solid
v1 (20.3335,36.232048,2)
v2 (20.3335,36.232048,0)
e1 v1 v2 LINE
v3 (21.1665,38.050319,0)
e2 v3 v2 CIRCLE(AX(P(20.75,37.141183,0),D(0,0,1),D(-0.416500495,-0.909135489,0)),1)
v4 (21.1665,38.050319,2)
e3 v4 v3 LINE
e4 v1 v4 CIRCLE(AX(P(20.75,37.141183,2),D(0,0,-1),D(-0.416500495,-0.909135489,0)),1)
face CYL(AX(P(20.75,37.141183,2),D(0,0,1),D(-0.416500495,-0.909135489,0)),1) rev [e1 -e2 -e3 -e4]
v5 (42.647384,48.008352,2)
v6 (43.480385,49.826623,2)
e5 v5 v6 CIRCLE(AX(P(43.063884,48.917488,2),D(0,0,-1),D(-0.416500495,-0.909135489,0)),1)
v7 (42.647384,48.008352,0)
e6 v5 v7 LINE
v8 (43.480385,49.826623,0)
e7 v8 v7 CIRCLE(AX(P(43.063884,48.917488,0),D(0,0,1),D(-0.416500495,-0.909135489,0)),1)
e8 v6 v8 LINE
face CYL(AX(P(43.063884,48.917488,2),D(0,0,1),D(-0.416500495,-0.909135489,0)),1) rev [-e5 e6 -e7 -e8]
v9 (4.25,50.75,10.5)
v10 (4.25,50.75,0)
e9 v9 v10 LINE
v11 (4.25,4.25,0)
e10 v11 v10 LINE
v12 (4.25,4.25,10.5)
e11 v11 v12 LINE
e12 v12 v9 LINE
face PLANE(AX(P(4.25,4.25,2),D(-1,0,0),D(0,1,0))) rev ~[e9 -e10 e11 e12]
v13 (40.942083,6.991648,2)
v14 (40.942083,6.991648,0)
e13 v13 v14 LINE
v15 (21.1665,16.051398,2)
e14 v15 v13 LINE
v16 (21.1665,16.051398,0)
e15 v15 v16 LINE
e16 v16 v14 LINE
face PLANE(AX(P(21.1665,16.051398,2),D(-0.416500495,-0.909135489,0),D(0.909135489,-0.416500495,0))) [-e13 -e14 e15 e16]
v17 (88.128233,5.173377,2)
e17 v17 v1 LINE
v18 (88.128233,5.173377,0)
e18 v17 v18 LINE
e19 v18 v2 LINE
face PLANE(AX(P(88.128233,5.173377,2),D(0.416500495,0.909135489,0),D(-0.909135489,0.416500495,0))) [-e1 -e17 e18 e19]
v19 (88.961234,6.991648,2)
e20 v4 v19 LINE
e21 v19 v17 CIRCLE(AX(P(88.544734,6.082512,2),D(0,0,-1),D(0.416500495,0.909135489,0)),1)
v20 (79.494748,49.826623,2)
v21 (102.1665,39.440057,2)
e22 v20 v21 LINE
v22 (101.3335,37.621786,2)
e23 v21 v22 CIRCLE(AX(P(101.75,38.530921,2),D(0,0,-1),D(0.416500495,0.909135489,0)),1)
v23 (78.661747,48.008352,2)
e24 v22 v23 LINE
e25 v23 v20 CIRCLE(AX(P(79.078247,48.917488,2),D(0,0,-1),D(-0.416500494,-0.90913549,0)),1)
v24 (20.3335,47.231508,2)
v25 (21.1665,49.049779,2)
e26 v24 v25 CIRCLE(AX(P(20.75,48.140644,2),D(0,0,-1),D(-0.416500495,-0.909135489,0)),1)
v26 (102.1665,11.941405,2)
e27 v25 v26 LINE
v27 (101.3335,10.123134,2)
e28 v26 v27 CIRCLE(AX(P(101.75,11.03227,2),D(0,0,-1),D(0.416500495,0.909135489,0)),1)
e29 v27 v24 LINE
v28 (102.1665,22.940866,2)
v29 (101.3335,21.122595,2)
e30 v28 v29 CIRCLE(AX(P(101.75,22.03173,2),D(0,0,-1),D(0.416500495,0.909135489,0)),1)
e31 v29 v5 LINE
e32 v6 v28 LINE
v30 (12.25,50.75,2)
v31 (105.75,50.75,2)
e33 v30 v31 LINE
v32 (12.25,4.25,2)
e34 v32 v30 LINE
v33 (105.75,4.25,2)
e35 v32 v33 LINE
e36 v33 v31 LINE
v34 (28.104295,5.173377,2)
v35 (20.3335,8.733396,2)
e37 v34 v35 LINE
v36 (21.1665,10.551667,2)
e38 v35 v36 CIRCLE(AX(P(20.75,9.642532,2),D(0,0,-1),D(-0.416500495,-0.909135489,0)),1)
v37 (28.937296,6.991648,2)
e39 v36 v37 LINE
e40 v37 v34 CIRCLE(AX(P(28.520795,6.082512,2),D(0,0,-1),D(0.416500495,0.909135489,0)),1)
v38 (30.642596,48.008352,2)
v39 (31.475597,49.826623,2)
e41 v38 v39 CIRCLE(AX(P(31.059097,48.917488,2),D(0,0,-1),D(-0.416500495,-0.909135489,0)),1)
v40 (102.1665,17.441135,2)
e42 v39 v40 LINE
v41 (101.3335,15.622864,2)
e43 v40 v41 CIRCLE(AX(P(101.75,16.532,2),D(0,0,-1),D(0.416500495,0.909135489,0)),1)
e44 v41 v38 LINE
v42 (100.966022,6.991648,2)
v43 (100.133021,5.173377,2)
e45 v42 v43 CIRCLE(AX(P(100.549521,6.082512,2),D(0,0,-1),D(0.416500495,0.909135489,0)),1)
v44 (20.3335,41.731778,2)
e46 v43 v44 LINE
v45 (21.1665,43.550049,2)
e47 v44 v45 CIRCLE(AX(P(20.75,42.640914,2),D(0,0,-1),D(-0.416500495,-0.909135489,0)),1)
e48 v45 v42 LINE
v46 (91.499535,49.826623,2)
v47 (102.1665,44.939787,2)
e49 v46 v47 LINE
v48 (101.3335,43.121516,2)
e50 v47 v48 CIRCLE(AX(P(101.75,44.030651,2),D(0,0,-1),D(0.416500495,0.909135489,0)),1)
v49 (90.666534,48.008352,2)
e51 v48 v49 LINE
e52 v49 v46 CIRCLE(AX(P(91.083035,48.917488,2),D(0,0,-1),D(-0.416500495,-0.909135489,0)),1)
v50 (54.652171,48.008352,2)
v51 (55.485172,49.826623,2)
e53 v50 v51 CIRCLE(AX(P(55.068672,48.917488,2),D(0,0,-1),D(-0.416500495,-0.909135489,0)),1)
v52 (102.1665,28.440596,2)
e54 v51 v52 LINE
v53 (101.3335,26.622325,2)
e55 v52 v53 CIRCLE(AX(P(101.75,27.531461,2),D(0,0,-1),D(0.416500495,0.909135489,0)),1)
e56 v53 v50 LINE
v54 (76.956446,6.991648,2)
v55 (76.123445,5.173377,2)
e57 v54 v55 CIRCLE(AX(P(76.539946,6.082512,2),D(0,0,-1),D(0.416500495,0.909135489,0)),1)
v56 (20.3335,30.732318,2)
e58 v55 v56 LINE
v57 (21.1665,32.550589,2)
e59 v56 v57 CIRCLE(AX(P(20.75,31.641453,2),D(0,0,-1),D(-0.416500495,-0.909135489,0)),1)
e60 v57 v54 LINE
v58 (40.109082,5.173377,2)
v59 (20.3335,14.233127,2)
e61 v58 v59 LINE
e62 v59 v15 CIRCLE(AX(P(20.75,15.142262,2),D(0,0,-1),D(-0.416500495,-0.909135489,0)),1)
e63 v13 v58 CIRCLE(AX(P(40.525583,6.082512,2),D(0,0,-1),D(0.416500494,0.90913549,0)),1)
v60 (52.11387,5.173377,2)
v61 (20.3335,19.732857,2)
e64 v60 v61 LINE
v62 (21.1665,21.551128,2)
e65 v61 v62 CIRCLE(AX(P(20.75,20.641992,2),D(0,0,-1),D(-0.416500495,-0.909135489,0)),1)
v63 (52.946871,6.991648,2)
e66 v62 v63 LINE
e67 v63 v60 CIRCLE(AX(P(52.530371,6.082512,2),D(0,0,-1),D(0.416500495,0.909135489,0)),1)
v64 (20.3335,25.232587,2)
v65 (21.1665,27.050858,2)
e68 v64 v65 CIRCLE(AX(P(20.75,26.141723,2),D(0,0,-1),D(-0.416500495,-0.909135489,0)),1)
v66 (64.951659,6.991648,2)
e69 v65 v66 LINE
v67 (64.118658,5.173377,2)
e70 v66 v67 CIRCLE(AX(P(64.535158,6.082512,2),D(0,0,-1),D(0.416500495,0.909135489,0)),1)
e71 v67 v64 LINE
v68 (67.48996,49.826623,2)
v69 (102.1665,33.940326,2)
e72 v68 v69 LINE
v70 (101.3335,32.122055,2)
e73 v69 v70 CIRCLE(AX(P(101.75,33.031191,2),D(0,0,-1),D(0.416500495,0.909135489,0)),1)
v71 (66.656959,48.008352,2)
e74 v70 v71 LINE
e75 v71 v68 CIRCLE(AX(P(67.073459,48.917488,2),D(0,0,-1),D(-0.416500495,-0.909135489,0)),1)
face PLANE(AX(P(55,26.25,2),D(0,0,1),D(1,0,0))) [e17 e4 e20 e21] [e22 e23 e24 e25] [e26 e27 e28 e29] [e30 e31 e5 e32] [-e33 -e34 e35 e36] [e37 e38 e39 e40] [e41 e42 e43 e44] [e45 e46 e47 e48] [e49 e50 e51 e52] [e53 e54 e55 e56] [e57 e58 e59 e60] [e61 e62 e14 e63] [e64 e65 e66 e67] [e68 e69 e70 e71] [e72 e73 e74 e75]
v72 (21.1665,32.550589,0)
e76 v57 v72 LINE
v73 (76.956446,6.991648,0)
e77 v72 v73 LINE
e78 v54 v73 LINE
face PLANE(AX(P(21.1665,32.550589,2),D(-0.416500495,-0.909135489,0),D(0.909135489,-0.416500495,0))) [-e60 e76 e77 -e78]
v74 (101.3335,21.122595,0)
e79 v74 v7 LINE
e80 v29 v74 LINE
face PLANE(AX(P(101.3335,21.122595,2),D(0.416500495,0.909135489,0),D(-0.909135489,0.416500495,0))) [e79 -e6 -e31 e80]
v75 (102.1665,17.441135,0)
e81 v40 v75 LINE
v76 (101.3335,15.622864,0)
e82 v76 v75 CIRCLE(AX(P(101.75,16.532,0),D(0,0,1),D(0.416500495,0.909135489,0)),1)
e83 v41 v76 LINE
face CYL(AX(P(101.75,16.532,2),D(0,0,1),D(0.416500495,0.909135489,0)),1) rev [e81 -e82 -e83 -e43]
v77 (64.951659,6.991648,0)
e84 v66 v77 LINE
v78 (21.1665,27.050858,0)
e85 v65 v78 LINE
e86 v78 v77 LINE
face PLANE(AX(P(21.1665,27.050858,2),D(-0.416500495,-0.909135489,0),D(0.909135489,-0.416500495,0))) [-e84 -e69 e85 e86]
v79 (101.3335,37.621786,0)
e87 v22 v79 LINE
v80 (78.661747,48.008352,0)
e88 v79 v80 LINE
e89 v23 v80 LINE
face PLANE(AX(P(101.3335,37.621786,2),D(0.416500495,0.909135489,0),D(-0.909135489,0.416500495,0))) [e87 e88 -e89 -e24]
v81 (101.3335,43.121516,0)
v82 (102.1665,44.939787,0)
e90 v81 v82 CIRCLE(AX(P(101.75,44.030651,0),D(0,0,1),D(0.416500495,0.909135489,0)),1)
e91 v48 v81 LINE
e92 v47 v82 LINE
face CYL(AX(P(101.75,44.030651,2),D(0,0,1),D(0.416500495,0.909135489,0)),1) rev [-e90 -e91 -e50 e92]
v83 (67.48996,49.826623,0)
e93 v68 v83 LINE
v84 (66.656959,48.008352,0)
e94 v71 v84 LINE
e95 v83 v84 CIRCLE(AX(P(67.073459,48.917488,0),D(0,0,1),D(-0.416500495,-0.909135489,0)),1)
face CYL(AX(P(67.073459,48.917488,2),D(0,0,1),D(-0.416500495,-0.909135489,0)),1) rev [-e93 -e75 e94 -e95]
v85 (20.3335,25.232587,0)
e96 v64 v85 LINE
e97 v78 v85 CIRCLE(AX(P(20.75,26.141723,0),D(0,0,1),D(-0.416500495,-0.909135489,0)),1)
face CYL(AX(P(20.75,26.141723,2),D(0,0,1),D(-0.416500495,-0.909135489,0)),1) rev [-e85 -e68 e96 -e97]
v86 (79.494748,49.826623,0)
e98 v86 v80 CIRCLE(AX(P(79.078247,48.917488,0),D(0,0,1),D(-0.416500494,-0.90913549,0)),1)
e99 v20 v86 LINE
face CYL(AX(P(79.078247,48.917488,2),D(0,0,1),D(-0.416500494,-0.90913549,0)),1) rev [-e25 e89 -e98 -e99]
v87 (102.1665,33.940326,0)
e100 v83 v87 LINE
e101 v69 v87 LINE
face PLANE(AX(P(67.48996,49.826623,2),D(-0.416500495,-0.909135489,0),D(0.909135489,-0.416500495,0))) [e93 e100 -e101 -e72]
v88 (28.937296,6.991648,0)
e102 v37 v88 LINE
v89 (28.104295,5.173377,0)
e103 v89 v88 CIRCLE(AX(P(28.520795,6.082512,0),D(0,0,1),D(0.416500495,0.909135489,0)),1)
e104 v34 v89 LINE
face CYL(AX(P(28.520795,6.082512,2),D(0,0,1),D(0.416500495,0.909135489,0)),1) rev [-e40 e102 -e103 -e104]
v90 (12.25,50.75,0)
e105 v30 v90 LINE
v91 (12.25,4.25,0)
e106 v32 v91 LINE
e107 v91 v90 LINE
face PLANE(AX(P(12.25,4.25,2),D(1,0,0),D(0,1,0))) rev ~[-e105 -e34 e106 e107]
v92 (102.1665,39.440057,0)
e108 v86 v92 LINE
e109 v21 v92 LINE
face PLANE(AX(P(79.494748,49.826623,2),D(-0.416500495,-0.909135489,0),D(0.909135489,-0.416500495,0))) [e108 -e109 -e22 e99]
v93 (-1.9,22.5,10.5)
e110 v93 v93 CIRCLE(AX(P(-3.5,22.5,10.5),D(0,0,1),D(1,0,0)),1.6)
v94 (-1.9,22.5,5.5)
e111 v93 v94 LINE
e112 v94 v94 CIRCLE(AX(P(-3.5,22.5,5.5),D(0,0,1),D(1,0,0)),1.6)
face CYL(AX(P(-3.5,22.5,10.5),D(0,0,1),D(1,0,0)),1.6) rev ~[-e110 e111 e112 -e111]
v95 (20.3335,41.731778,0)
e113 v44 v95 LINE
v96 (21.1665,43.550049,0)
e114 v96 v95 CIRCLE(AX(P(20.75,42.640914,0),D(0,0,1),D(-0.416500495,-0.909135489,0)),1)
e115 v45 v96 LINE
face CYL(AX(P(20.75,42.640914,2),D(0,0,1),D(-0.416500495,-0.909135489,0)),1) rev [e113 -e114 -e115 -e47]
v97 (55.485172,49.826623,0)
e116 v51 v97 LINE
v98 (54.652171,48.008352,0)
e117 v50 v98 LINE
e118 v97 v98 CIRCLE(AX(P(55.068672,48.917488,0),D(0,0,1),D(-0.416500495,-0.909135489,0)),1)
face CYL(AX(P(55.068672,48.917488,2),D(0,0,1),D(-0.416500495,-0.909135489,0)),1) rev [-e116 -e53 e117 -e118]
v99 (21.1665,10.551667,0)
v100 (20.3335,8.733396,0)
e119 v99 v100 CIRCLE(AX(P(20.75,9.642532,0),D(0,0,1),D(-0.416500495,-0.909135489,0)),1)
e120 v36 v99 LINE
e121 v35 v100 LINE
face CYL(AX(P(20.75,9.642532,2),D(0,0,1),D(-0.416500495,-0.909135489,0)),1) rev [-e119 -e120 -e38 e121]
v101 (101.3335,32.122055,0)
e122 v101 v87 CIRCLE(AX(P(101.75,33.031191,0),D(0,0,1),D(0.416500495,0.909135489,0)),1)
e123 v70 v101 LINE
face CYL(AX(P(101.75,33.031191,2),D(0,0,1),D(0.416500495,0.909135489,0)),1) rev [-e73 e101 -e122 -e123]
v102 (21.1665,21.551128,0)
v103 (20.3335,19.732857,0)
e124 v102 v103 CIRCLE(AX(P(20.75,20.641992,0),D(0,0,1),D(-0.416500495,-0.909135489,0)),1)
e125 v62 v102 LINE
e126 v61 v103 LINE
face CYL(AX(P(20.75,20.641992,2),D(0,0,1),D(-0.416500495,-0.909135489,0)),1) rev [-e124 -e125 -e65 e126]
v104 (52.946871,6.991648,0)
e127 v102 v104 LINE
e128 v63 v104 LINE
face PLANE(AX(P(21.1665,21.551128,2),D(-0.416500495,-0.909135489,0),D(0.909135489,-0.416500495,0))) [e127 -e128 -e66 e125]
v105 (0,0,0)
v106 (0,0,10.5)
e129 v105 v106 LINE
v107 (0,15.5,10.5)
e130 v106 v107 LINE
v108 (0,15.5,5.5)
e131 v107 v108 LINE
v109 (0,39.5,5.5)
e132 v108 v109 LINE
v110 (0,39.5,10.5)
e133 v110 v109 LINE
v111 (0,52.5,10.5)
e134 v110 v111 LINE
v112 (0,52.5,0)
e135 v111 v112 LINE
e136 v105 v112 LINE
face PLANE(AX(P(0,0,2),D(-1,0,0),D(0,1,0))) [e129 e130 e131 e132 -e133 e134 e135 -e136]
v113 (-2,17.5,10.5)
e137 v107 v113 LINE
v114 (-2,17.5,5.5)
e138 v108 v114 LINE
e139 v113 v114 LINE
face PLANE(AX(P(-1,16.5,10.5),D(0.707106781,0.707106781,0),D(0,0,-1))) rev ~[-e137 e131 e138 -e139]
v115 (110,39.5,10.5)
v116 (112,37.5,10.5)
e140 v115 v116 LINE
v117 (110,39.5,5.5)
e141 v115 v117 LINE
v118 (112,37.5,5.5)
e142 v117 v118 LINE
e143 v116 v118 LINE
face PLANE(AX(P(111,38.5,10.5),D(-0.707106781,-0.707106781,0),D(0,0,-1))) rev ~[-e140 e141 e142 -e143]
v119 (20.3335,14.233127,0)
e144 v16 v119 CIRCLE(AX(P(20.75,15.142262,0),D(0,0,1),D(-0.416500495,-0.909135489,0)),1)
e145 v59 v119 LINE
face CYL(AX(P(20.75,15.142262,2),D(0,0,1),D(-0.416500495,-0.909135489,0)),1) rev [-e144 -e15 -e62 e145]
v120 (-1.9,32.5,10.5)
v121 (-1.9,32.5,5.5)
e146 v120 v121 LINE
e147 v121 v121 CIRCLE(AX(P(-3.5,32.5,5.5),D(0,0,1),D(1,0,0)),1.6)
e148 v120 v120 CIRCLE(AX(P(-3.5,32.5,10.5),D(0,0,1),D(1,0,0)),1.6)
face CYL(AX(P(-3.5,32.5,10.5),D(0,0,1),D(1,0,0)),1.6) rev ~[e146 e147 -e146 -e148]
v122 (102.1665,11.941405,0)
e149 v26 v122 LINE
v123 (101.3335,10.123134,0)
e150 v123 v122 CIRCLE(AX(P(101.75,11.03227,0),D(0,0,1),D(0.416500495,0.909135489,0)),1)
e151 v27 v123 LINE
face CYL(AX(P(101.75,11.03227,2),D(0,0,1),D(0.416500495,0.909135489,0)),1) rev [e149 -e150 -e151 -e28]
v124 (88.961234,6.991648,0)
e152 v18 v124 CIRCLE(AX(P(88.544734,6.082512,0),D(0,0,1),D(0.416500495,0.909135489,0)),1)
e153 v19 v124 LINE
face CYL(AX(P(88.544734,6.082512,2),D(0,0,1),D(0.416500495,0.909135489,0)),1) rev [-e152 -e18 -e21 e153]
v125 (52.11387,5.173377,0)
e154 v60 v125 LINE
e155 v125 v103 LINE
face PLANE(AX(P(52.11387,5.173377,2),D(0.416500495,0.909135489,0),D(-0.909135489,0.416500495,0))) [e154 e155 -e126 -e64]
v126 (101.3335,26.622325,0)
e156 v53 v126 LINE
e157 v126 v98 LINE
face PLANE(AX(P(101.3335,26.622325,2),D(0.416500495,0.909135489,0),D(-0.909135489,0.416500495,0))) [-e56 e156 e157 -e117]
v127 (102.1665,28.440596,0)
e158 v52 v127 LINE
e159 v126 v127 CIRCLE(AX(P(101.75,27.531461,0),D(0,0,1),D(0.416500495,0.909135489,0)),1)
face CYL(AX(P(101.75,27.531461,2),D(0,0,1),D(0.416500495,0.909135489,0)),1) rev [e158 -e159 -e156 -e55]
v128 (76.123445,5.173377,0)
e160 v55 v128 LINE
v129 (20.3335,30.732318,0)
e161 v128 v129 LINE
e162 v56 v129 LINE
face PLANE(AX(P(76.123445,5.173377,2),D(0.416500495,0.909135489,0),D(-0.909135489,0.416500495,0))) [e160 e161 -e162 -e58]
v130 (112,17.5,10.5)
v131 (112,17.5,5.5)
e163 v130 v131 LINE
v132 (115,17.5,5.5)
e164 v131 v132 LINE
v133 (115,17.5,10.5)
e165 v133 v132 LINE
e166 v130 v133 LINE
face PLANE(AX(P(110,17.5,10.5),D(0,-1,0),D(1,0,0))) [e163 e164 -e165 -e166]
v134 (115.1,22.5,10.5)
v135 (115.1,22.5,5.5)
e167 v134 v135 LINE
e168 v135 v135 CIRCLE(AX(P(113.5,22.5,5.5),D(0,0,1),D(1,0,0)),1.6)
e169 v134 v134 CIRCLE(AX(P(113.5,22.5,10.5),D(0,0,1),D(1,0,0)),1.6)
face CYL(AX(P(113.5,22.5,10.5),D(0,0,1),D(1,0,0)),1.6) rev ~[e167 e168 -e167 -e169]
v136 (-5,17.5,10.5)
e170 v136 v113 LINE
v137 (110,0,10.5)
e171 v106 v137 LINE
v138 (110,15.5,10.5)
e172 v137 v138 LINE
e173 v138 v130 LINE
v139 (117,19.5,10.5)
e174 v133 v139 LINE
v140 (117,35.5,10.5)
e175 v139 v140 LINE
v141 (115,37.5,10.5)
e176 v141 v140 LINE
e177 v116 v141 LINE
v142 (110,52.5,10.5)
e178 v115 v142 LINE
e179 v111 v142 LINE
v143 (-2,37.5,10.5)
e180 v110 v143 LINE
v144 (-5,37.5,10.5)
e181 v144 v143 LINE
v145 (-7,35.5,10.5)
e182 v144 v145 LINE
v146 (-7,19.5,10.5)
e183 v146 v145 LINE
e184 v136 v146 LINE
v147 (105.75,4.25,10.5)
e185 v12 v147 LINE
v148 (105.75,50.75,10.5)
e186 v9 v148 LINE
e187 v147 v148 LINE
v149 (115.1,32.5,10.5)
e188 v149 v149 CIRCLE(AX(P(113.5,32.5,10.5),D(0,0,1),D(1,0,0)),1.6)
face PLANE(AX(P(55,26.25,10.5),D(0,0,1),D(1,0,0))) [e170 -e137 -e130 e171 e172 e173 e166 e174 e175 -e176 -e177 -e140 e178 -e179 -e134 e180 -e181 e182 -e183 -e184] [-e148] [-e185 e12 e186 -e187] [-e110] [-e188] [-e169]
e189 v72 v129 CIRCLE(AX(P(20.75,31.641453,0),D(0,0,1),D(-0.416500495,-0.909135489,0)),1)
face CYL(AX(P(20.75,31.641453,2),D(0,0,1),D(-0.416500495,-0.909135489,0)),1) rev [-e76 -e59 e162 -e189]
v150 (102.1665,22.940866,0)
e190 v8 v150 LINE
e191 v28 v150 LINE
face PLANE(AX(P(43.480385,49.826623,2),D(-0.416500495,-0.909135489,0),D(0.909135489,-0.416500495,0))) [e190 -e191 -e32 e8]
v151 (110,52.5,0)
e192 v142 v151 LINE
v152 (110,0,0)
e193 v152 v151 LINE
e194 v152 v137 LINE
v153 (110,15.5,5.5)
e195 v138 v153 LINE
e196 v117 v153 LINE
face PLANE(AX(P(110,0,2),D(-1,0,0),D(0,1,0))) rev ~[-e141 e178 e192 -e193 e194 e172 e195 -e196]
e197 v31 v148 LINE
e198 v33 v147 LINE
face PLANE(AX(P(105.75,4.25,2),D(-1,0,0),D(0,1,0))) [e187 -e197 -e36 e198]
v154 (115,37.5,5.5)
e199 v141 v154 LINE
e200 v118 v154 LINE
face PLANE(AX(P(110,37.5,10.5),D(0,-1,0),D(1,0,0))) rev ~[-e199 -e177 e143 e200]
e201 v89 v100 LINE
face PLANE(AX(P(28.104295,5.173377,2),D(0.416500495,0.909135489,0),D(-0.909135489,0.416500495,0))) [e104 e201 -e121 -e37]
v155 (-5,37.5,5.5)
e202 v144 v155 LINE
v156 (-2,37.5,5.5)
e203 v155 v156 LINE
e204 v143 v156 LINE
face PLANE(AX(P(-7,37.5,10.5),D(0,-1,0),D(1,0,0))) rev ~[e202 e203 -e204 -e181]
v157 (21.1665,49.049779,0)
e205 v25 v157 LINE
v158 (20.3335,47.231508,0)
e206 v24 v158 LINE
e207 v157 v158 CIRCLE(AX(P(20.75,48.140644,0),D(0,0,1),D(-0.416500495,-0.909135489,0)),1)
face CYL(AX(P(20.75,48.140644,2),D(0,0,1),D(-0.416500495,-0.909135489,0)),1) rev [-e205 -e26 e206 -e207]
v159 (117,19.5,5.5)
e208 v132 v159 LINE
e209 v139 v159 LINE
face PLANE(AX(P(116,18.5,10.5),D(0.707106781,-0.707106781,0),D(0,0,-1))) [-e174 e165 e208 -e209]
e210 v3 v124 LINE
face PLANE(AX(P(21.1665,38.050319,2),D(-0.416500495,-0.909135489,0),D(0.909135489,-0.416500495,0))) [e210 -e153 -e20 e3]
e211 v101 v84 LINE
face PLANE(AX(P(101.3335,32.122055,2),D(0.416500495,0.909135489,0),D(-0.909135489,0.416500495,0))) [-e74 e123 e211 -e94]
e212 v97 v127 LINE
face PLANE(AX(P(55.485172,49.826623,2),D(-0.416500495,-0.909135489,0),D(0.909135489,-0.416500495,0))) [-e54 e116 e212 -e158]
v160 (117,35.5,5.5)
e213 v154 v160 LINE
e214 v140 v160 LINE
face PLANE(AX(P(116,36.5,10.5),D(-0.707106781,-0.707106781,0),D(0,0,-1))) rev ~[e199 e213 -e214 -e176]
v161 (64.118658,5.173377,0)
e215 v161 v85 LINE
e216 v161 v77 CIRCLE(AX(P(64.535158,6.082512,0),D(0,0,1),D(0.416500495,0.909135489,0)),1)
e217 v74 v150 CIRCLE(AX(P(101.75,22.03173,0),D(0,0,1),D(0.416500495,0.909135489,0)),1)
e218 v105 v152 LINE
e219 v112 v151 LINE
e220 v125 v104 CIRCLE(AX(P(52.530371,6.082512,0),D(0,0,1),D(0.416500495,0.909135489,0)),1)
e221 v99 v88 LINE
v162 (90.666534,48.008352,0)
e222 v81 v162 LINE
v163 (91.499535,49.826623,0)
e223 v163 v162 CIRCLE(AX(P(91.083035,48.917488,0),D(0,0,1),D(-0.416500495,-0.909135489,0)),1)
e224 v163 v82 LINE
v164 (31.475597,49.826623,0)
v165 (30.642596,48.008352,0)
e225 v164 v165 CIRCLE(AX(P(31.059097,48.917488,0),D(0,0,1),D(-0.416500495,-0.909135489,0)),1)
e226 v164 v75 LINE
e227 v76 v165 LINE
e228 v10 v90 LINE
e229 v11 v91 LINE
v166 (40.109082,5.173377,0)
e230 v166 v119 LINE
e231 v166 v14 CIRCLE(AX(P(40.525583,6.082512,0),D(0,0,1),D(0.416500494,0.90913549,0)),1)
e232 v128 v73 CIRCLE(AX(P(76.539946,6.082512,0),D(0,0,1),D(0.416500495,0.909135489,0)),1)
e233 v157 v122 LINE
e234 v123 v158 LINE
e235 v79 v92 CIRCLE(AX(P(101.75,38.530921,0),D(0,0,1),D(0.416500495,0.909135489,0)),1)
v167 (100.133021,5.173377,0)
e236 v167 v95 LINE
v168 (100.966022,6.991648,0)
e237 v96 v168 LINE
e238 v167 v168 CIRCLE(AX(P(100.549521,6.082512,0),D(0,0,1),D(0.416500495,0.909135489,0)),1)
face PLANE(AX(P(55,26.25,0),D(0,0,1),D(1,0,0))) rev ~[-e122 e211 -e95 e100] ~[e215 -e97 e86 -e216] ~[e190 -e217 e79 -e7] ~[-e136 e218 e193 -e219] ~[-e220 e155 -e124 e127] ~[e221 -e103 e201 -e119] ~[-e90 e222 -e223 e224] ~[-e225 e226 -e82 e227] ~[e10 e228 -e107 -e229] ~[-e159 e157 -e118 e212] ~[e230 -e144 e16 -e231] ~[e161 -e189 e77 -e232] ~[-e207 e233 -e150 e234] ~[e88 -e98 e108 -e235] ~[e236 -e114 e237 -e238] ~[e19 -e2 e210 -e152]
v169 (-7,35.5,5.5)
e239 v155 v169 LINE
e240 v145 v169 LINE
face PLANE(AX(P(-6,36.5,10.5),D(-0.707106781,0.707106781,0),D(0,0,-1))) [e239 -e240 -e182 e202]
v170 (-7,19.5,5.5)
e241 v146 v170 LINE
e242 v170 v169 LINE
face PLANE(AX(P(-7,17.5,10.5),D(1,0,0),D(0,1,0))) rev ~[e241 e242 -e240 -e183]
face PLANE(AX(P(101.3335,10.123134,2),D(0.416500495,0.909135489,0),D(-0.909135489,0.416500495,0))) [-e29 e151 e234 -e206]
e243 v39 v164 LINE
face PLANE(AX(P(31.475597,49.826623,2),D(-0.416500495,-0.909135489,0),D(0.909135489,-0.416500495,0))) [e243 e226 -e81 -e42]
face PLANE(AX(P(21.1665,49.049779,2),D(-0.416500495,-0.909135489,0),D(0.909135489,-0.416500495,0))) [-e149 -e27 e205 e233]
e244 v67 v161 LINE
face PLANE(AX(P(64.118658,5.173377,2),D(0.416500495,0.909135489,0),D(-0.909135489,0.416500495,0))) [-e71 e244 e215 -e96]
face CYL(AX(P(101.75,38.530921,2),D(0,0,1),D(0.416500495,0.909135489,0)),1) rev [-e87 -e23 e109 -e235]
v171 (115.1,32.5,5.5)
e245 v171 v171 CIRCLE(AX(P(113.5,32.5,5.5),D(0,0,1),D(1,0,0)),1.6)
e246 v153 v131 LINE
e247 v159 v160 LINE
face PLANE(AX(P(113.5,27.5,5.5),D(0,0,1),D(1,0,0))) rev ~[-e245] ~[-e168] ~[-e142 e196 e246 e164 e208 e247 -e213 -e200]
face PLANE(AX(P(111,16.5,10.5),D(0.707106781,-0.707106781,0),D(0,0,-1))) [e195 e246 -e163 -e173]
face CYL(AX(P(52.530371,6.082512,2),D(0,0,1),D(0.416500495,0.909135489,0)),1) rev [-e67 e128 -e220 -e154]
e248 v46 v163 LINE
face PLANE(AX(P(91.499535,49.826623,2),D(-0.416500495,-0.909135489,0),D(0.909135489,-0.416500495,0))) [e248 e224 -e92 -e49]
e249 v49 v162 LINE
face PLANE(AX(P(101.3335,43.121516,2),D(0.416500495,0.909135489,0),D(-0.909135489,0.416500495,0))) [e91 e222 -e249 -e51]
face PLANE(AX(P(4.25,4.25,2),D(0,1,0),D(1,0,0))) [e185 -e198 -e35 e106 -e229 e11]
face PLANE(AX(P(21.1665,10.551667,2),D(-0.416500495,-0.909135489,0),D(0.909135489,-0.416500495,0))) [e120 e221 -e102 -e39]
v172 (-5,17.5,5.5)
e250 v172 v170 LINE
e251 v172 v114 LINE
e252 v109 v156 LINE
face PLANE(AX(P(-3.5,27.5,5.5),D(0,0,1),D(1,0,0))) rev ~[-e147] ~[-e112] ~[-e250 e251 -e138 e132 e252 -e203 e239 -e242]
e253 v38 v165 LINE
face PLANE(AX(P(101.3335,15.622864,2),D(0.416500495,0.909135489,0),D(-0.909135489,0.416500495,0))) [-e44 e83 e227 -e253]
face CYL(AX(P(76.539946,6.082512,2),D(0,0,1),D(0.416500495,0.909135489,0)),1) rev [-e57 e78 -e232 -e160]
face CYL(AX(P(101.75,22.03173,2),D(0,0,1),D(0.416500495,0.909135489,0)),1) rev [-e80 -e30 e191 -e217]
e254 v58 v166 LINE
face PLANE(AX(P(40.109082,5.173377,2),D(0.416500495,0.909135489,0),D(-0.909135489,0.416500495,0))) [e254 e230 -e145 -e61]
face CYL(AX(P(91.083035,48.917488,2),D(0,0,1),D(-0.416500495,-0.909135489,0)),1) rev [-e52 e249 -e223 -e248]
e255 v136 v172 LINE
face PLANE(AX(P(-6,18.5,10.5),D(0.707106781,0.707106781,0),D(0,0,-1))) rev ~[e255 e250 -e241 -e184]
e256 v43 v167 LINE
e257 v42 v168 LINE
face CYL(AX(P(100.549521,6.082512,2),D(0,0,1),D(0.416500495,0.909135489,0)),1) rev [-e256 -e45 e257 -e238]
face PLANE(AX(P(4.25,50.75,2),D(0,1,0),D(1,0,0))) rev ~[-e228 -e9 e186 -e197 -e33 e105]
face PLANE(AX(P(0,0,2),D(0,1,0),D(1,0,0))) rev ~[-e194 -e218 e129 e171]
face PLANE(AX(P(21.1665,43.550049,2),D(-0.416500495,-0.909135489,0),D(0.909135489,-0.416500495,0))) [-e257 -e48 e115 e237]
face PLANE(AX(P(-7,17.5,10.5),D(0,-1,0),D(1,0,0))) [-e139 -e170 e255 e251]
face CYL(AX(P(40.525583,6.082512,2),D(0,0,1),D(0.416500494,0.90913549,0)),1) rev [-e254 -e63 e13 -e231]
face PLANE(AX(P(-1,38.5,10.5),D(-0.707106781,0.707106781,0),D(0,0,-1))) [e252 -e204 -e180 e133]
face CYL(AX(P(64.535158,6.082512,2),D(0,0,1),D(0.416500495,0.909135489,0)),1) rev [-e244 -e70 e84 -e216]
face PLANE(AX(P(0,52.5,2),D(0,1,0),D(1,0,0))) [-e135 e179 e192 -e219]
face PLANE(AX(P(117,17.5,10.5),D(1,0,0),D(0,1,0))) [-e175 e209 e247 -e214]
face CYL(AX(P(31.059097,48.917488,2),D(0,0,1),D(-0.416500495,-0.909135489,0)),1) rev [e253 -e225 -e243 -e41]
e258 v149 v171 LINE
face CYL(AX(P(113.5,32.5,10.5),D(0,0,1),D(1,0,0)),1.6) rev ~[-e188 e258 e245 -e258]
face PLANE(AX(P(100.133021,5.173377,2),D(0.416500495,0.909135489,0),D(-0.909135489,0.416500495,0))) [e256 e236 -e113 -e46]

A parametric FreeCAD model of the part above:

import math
import FreeCAD as App
import Part
import Sketcher
from FreeCAD import Vector


def edges_at(feature, points):
    """Names of the edges that pass closest to the given points."""
    edges = feature.Shape.Edges
    near = lambda p: min(range(len(edges)), key=lambda i: edges[i].distToShape(Part.Vertex(*p))[0])
    return sorted({f"Edge{near(p) + 1}" for p in points})


def add_polygon(sketch, points):
    """Adds a closed chain of lines whose ends are joined by coincident constraints."""
    first, n = sketch.GeometryCount, len(points)
    for a, b in zip(points, points[1:] + points[:1]):
        sketch.addGeometry(Part.LineSegment(App.Vector(*a, 0), App.Vector(*b, 0)), False)
    for i in range(n):
        sketch.addConstraint(Sketcher.Constraint("Coincident", first + i, 2, first + (i + 1) % n, 1))

doc = App.newDocument("Part")
body = doc.addObject("PartDesign::Body", "Body")

# Sketch on XY plane
sketch1 = doc.addObject("Sketcher::SketchObject", "Sketch")
body.addObject(sketch1)
sketch1.AttachmentSupport = (doc.XY_Plane, [""])
sketch1.MapMode = "FlatFace"
add_polygon(sketch1, [(0, 52), (0, 0), (110, 0), (110, 52)])  # lines 0-3
sketch1.addConstraint([
    Sketcher.Constraint("Vertical", 0),
    Sketcher.Constraint("Horizontal", 1),
    Sketcher.Constraint("Vertical", 2),
    Sketcher.Constraint("Horizontal", 3),
    Sketcher.Constraint("Coincident", 0, 2, -1, 1),
    Sketcher.Constraint("DistanceX", 1, 1, 1, 2, 110.0),
    Sketcher.Constraint("DistanceY", 0, 2, 0, 1, 52.5),
])
pad1 = doc.addObject("PartDesign::Pad", "Pad")
body.addObject(pad1)
pad1.Profile = sketch1
pad1.Length = 2

# Sketch on XY plane
sketch2 = doc.addObject("Sketcher::SketchObject", "Sketch001")
body.addObject(sketch2)
sketch2.AttachmentSupport = (doc.XY_Plane, [""])
sketch2.MapMode = "FlatFace"
sketch2.AttachmentOffset = App.Placement(Vector(0, 0, 2), App.Rotation())
add_polygon(sketch2, [(0, 52), (0, 0), (110, 0), (110, 52)])  # lines 0-3
add_polygon(sketch2, [(106, 4), (4, 4), (4, 51), (106, 51)])  # lines 4-7
sketch2.addConstraint([
    Sketcher.Constraint("Vertical", 0),
    Sketcher.Constraint("Horizontal", 1),
    Sketcher.Constraint("Vertical", 2),
    Sketcher.Constraint("Horizontal", 3),
    Sketcher.Constraint("Horizontal", 4),
    Sketcher.Constraint("Vertical", 5),
    Sketcher.Constraint("Horizontal", 6),
    Sketcher.Constraint("Vertical", 7),
    Sketcher.Constraint("Coincident", 0, 2, -1, 1),
    Sketcher.Constraint("DistanceX", 1, 1, 1, 2, 110.0),
    Sketcher.Constraint("DistanceX", 4, 2, 4, 1, 101.5),
    Sketcher.Constraint("DistanceY", 0, 2, 0, 1, 52.5),
    Sketcher.Constraint("DistanceY", 5, 1, 5, 2, 46.5),
    Sketcher.Constraint("DistanceX", -1, 1, 4, 2, 4.25),
    Sketcher.Constraint("DistanceY", -1, 1, 4, 2, 4.25),
])
pad2 = doc.addObject("PartDesign::Pad", "Pad001")
body.addObject(pad2)
pad2.Profile = sketch2
pad2.Length = 8.5

# Sketch on XY plane
sketch3 = doc.addObject("Sketcher::SketchObject", "Sketch002")
body.addObject(sketch3)
sketch3.AttachmentSupport = (doc.XY_Plane, [""])
sketch3.MapMode = "FlatFace"
sketch3.AttachmentOffset = App.Placement(Vector(0, 0, 2), App.Rotation())
sketch3.addGeometry([
    Part.LineSegment(Vector(28.937296, 6.991648, 0), Vector(21.1665, 10.551667, 0)),  # 0
    Part.ArcOfCircle(Part.Circle(Vector(20.75, 9.642532, 0), Vector(0, 0, 1), 1), math.radians(65.386155), math.radians(245.386155)),  # 1
    Part.LineSegment(Vector(20.3335, 8.733396, 0), Vector(28.104295, 5.173377, 0)),  # 2
    Part.ArcOfCircle(Part.Circle(Vector(28.520795, 6.082512, 0), Vector(0, 0, 1), 1), math.radians(-114.613845), math.radians(65.386155)),  # 3
    Part.LineSegment(Vector(102.1665, 44.939787, 0), Vector(91.499535, 49.826623, 0)),  # 4
    Part.ArcOfCircle(Part.Circle(Vector(91.083035, 48.917488, 0), Vector(0, 0, 1), 1), math.radians(65.386155), math.radians(245.386155)),  # 5
    Part.LineSegment(Vector(90.666534, 48.008352, 0), Vector(101.3335, 43.121516, 0)),  # 6
    Part.ArcOfCircle(Part.Circle(Vector(101.75, 44.030651, 0), Vector(0, 0, 1), 1), math.radians(-114.613845), math.radians(65.386155)),  # 7
    Part.LineSegment(Vector(40.942083, 6.991648, 0), Vector(21.1665, 16.051398, 0)),  # 8
    Part.ArcOfCircle(Part.Circle(Vector(20.75, 15.142262, 0), Vector(0, 0, 1), 1), math.radians(65.386155), math.radians(245.386155)),  # 9
    Part.LineSegment(Vector(20.3335, 14.233127, 0), Vector(40.109082, 5.173377, 0)),  # 10
    Part.ArcOfCircle(Part.Circle(Vector(40.525583, 6.082512, 0), Vector(0, 0, 1), 1), math.radians(-114.613845), math.radians(65.386155)),  # 11
    Part.LineSegment(Vector(52.946871, 6.991648, 0), Vector(21.1665, 21.551128, 0)),  # 12
    Part.ArcOfCircle(Part.Circle(Vector(20.75, 20.641992, 0), Vector(0, 0, 1), 1), math.radians(65.386155), math.radians(245.386155)),  # 13
    Part.LineSegment(Vector(20.3335, 19.732857, 0), Vector(52.11387, 5.173377, 0)),  # 14
    Part.ArcOfCircle(Part.Circle(Vector(52.530371, 6.082512, 0), Vector(0, 0, 1), 1), math.radians(-114.613845), math.radians(65.386155)),  # 15
    Part.LineSegment(Vector(76.956446, 6.991648, 0), Vector(21.1665, 32.550589, 0)),  # 16
    Part.ArcOfCircle(Part.Circle(Vector(20.75, 31.641453, 0), Vector(0, 0, 1), 1), math.radians(65.386155), math.radians(245.386155)),  # 17
    Part.LineSegment(Vector(20.3335, 30.732318, 0), Vector(76.123445, 5.173377, 0)),  # 18
    Part.ArcOfCircle(Part.Circle(Vector(76.539946, 6.082512, 0), Vector(0, 0, 1), 1), math.radians(-114.613845), math.radians(65.386155)),  # 19
    Part.LineSegment(Vector(64.951659, 6.991648, 0), Vector(21.1665, 27.050858, 0)),  # 20
    Part.ArcOfCircle(Part.Circle(Vector(20.75, 26.141723, 0), Vector(0, 0, 1), 1), math.radians(65.386155), math.radians(245.386155)),  # 21
    Part.LineSegment(Vector(20.3335, 25.232587, 0), Vector(64.118658, 5.173377, 0)),  # 22
    Part.ArcOfCircle(Part.Circle(Vector(64.535158, 6.082512, 0), Vector(0, 0, 1), 1), math.radians(-114.613845), math.radians(65.386155)),  # 23
    Part.LineSegment(Vector(88.961234, 6.991648, 0), Vector(21.1665, 38.050319, 0)),  # 24
    Part.ArcOfCircle(Part.Circle(Vector(20.75, 37.141183, 0), Vector(0, 0, 1), 1), math.radians(65.386155), math.radians(245.386155)),  # 25
    Part.LineSegment(Vector(20.3335, 36.232048, 0), Vector(88.128233, 5.173377, 0)),  # 26
    Part.ArcOfCircle(Part.Circle(Vector(88.544734, 6.082512, 0), Vector(0, 0, 1), 1), math.radians(-114.613845), math.radians(65.386155)),  # 27
    Part.LineSegment(Vector(100.966022, 6.991648, 0), Vector(21.1665, 43.550049, 0)),  # 28
    Part.ArcOfCircle(Part.Circle(Vector(20.75, 42.640914, 0), Vector(0, 0, 1), 1), math.radians(65.386155), math.radians(245.386155)),  # 29
    Part.LineSegment(Vector(20.3335, 41.731778, 0), Vector(100.133021, 5.173377, 0)),  # 30
    Part.ArcOfCircle(Part.Circle(Vector(100.549521, 6.082512, 0), Vector(0, 0, 1), 1), math.radians(-114.613845), math.radians(65.386155)),  # 31
    Part.LineSegment(Vector(102.1665, 11.941405, 0), Vector(21.1665, 49.049779, 0)),  # 32
    Part.ArcOfCircle(Part.Circle(Vector(20.75, 48.140644, 0), Vector(0, 0, 1), 1), math.radians(65.386155), math.radians(245.386155)),  # 33
    Part.LineSegment(Vector(20.3335, 47.231508, 0), Vector(101.3335, 10.123134, 0)),  # 34
    Part.ArcOfCircle(Part.Circle(Vector(101.75, 11.03227, 0), Vector(0, 0, 1), 1), math.radians(-114.613845), math.radians(65.386155)),  # 35
    Part.LineSegment(Vector(102.1665, 17.441135, 0), Vector(31.475597, 49.826623, 0)),  # 36
    Part.ArcOfCircle(Part.Circle(Vector(31.059097, 48.917488, 0), Vector(0, 0, 1), 1), math.radians(65.386155), math.radians(245.386155)),  # 37
    Part.LineSegment(Vector(30.642596, 48.008352, 0), Vector(101.3335, 15.622864, 0)),  # 38
    Part.ArcOfCircle(Part.Circle(Vector(101.75, 16.532, 0), Vector(0, 0, 1), 1), math.radians(-114.613845), math.radians(65.386155)),  # 39
    Part.LineSegment(Vector(102.1665, 22.940866, 0), Vector(43.480385, 49.826623, 0)),  # 40
    Part.ArcOfCircle(Part.Circle(Vector(43.063884, 48.917488, 0), Vector(0, 0, 1), 1), math.radians(65.386155), math.radians(245.386155)),  # 41
    Part.LineSegment(Vector(42.647384, 48.008352, 0), Vector(101.3335, 21.122595, 0)),  # 42
    Part.ArcOfCircle(Part.Circle(Vector(101.75, 22.03173, 0), Vector(0, 0, 1), 1), math.radians(-114.613845), math.radians(65.386155)),  # 43
    Part.LineSegment(Vector(102.1665, 28.440596, 0), Vector(55.485172, 49.826623, 0)),  # 44
    Part.ArcOfCircle(Part.Circle(Vector(55.068672, 48.917488, 0), Vector(0, 0, 1), 1), math.radians(65.386155), math.radians(245.386155)),  # 45
    Part.LineSegment(Vector(54.652171, 48.008352, 0), Vector(101.3335, 26.622325, 0)),  # 46
    Part.ArcOfCircle(Part.Circle(Vector(101.75, 27.531461, 0), Vector(0, 0, 1), 1), math.radians(-114.613845), math.radians(65.386155)),  # 47
    Part.LineSegment(Vector(102.1665, 33.940326, 0), Vector(67.48996, 49.826623, 0)),  # 48
    Part.ArcOfCircle(Part.Circle(Vector(67.073459, 48.917488, 0), Vector(0, 0, 1), 1), math.radians(65.386155), math.radians(245.386155)),  # 49
    Part.LineSegment(Vector(66.656959, 48.008352, 0), Vector(101.3335, 32.122055, 0)),  # 50
    Part.ArcOfCircle(Part.Circle(Vector(101.75, 33.031191, 0), Vector(0, 0, 1), 1), math.radians(-114.613845), math.radians(65.386155)),  # 51
    Part.LineSegment(Vector(102.1665, 39.440057, 0), Vector(79.494748, 49.826623, 0)),  # 52
    Part.ArcOfCircle(Part.Circle(Vector(79.078247, 48.917488, 0), Vector(0, 0, 1), 1), math.radians(65.386155), math.radians(245.386155)),  # 53
    Part.LineSegment(Vector(78.661747, 48.008352, 0), Vector(101.3335, 37.621786, 0)),  # 54
    Part.ArcOfCircle(Part.Circle(Vector(101.75, 38.530921, 0), Vector(0, 0, 1), 1), math.radians(-114.613845), math.radians(65.386155)),  # 55
], False)
sketch3.addConstraint([
    Sketcher.Constraint("Coincident", 0, 2, 1, 1),
    Sketcher.Constraint("Coincident", 1, 2, 2, 1),
    Sketcher.Constraint("Coincident", 2, 2, 3, 1),
    Sketcher.Constraint("Coincident", 3, 2, 0, 1),
    Sketcher.Constraint("Coincident", 4, 2, 5, 1),
    Sketcher.Constraint("Coincident", 5, 2, 6, 1),
    Sketcher.Constraint("Coincident", 6, 2, 7, 1),
    Sketcher.Constraint("Coincident", 7, 2, 4, 1),
    Sketcher.Constraint("Coincident", 8, 2, 9, 1),
    Sketcher.Constraint("Coincident", 9, 2, 10, 1),
    Sketcher.Constraint("Coincident", 10, 2, 11, 1),
    Sketcher.Constraint("Coincident", 11, 2, 8, 1),
    Sketcher.Constraint("Coincident", 12, 2, 13, 1),
    Sketcher.Constraint("Coincident", 13, 2, 14, 1),
    Sketcher.Constraint("Coincident", 14, 2, 15, 1),
    Sketcher.Constraint("Coincident", 15, 2, 12, 1),
    Sketcher.Constraint("Coincident", 16, 2, 17, 1),
    Sketcher.Constraint("Coincident", 17, 2, 18, 1),
    Sketcher.Constraint("Coincident", 18, 2, 19, 1),
    Sketcher.Constraint("Coincident", 19, 2, 16, 1),
    Sketcher.Constraint("Coincident", 20, 2, 21, 1),
    Sketcher.Constraint("Coincident", 21, 2, 22, 1),
    Sketcher.Constraint("Coincident", 22, 2, 23, 1),
    Sketcher.Constraint("Coincident", 23, 2, 20, 1),
    Sketcher.Constraint("Coincident", 24, 2, 25, 1),
    Sketcher.Constraint("Coincident", 25, 2, 26, 1),
    Sketcher.Constraint("Coincident", 26, 2, 27, 1),
    Sketcher.Constraint("Coincident", 27, 2, 24, 1),
    Sketcher.Constraint("Coincident", 28, 2, 29, 1),
    Sketcher.Constraint("Coincident", 29, 2, 30, 1),
    Sketcher.Constraint("Coincident", 30, 2, 31, 1),
    Sketcher.Constraint("Coincident", 31, 2, 28, 1),
    Sketcher.Constraint("Coincident", 32, 2, 33, 1),
    Sketcher.Constraint("Coincident", 33, 2, 34, 1),
    Sketcher.Constraint("Coincident", 34, 2, 35, 1),
    Sketcher.Constraint("Coincident", 35, 2, 32, 1),
    Sketcher.Constraint("Coincident", 36, 2, 37, 1),
    Sketcher.Constraint("Coincident", 37, 2, 38, 1),
    Sketcher.Constraint("Coincident", 38, 2, 39, 1),
    Sketcher.Constraint("Coincident", 39, 2, 36, 1),
    Sketcher.Constraint("Coincident", 40, 2, 41, 1),
    Sketcher.Constraint("Coincident", 41, 2, 42, 1),
    Sketcher.Constraint("Coincident", 42, 2, 43, 1),
    Sketcher.Constraint("Coincident", 43, 2, 40, 1),
    Sketcher.Constraint("Coincident", 44, 2, 45, 1),
    Sketcher.Constraint("Coincident", 45, 2, 46, 1),
    Sketcher.Constraint("Coincident", 46, 2, 47, 1),
    Sketcher.Constraint("Coincident", 47, 2, 44, 1),
    Sketcher.Constraint("Coincident", 48, 2, 49, 1),
    Sketcher.Constraint("Coincident", 49, 2, 50, 1),
    Sketcher.Constraint("Coincident", 50, 2, 51, 1),
    Sketcher.Constraint("Coincident", 51, 2, 48, 1),
    Sketcher.Constraint("Coincident", 52, 2, 53, 1),
    Sketcher.Constraint("Coincident", 53, 2, 54, 1),
    Sketcher.Constraint("Coincident", 54, 2, 55, 1),
    Sketcher.Constraint("Coincident", 55, 2, 52, 1),
    Sketcher.Constraint("Radius", 1, 1.0),
    Sketcher.Constraint("Radius", 3, 1.0),
    Sketcher.Constraint("Radius", 5, 1.0),
    Sketcher.Constraint("Radius", 7, 1.0),
    Sketcher.Constraint("Radius", 9, 1.0),
    Sketcher.Constraint("Radius", 11, 1.0),
    Sketcher.Constraint("Radius", 13, 1.0),
    Sketcher.Constraint("Radius", 15, 1.0),
    Sketcher.Constraint("Radius", 17, 1.0),
    Sketcher.Constraint("Radius", 19, 1.0),
    Sketcher.Constraint("Radius", 21, 1.0),
    Sketcher.Constraint("Radius", 23, 1.0),
    Sketcher.Constraint("Radius", 25, 1.0),
    Sketcher.Constraint("Radius", 27, 1.0),
    Sketcher.Constraint("Radius", 29, 1.0),
    Sketcher.Constraint("Radius", 31, 1.0),
    Sketcher.Constraint("Radius", 33, 1.0),
    Sketcher.Constraint("Radius", 35, 1.0),
    Sketcher.Constraint("Radius", 37, 1.0),
    Sketcher.Constraint("Radius", 39, 1.0),
    Sketcher.Constraint("Radius", 41, 1.0),
    Sketcher.Constraint("Radius", 43, 1.0),
    Sketcher.Constraint("Radius", 45, 1.0),
    Sketcher.Constraint("Radius", 47, 1.0),
    Sketcher.Constraint("Radius", 49, 1.0),
    Sketcher.Constraint("Radius", 51, 1.0),
    Sketcher.Constraint("Radius", 53, 1.0),
    Sketcher.Constraint("Radius", 55, 1.0),
    Sketcher.Constraint("DistanceX", -1, 1, 1, 3, 20.75),
    Sketcher.Constraint("DistanceX", -1, 1, 7, 3, 101.75),
    Sketcher.Constraint("DistanceX", -1, 1, 9, 3, 20.75),
    Sketcher.Constraint("DistanceX", -1, 1, 13, 3, 20.75),
    Sketcher.Constraint("DistanceX", -1, 1, 17, 3, 20.75),
    Sketcher.Constraint("DistanceX", -1, 1, 21, 3, 20.75),
    Sketcher.Constraint("DistanceX", -1, 1, 25, 3, 20.75),
    Sketcher.Constraint("DistanceX", -1, 1, 29, 3, 20.75),
    Sketcher.Constraint("DistanceX", -1, 1, 33, 3, 20.75),
    Sketcher.Constraint("DistanceX", -1, 1, 35, 3, 101.75),
    Sketcher.Constraint("DistanceX", -1, 1, 39, 3, 101.75),
    Sketcher.Constraint("DistanceX", -1, 1, 43, 3, 101.75),
    Sketcher.Constraint("DistanceX", -1, 1, 47, 3, 101.75),
    Sketcher.Constraint("DistanceX", -1, 1, 51, 3, 101.75),
    Sketcher.Constraint("DistanceX", -1, 1, 55, 3, 101.75),
    Sketcher.Constraint("DistanceY", -1, 1, 39, 3, 16.532),
    Sketcher.Constraint("DistanceX", -1, 1, 0, 2, 21.1665),
    Sketcher.Constraint("DistanceX", -1, 1, 1, 2, 20.3335),
    Sketcher.Constraint("DistanceX", -1, 1, 6, 2, 101.3335),
    Sketcher.Constraint("DistanceX", -1, 1, 7, 2, 102.1665),
    Sketcher.Constraint("DistanceX", -1, 1, 8, 2, 21.1665),
    Sketcher.Constraint("DistanceX", -1, 1, 9, 2, 20.3335),
    Sketcher.Constraint("DistanceX", -1, 1, 12, 2, 21.1665),
    Sketcher.Constraint("DistanceX", -1, 1, 13, 2, 20.3335),
    Sketcher.Constraint("DistanceX", -1, 1, 16, 2, 21.1665),
    Sketcher.Constraint("DistanceX", -1, 1, 17, 2, 20.3335),
    Sketcher.Constraint("DistanceX", -1, 1, 20, 2, 21.1665),
    Sketcher.Constraint("DistanceX", -1, 1, 21, 2, 20.3335),
    Sketcher.Constraint("DistanceX", -1, 1, 24, 2, 21.1665),
    Sketcher.Constraint("DistanceX", -1, 1, 25, 2, 20.3335),
    Sketcher.Constraint("DistanceX", -1, 1, 28, 2, 21.1665),
    Sketcher.Constraint("DistanceX", -1, 1, 29, 2, 20.3335),
    Sketcher.Constraint("DistanceX", -1, 1, 32, 2, 21.1665),
    Sketcher.Constraint("DistanceX", -1, 1, 33, 2, 20.3335),
    Sketcher.Constraint("DistanceX", -1, 1, 34, 2, 101.3335),
    Sketcher.Constraint("DistanceX", -1, 1, 35, 2, 102.1665),
    Sketcher.Constraint("DistanceX", -1, 1, 38, 2, 101.3335),
    Sketcher.Constraint("DistanceX", -1, 1, 39, 2, 102.1665),
    Sketcher.Constraint("DistanceX", -1, 1, 42, 2, 101.3335),
    Sketcher.Constraint("DistanceX", -1, 1, 43, 2, 102.1665),
    Sketcher.Constraint("DistanceX", -1, 1, 46, 2, 101.3335),
    Sketcher.Constraint("DistanceX", -1, 1, 47, 2, 102.1665),
    Sketcher.Constraint("DistanceX", -1, 1, 50, 2, 101.3335),
    Sketcher.Constraint("DistanceX", -1, 1, 51, 2, 102.1665),
    Sketcher.Constraint("DistanceX", -1, 1, 54, 2, 101.3335),
    Sketcher.Constraint("DistanceX", -1, 1, 55, 2, 102.1665),
    Sketcher.Constraint("Distance", 16, 61.365931),
    Sketcher.Constraint("Distance", 18, 61.365931),
    Sketcher.Constraint("Distance", 24, 74.57055),
    Sketcher.Constraint("Distance", 26, 74.57055),
    Sketcher.Constraint("Distance", 28, 87.775169),
    Sketcher.Constraint("Distance", 30, 87.775169),
    Sketcher.Constraint("Distance", 32, 89.095631),
    Sketcher.Constraint("Distance", 36, 77.756181),
    Sketcher.Constraint("Distance", 38, 77.756181),
    Sketcher.Constraint("Distance", 40, 64.551562),
    Sketcher.Constraint("Distance", 42, 64.551562),
    Sketcher.Constraint("DistanceY", -1, 1, 1, 3, 9.642532),
    Sketcher.Constraint("DistanceY", -1, 1, 7, 3, 44.030651),
    Sketcher.Constraint("DistanceX", -1, 1, 15, 3, 52.530371),
    Sketcher.Constraint("DistanceX", -1, 1, 23, 3, 64.535158),
    Sketcher.Constraint("DistanceX", -1, 1, 31, 3, 100.549521),
    Sketcher.Constraint("DistanceY", -1, 1, 35, 3, 11.03227),
    Sketcher.Constraint("DistanceY", -1, 1, 43, 3, 22.03173),
    Sketcher.Constraint("DistanceX", -1, 1, 45, 3, 55.068672),
    Sketcher.Constraint("DistanceY", -1, 1, 47, 3, 27.531461),
    Sketcher.Constraint("DistanceX", -1, 1, 49, 3, 67.073459),
    Sketcher.Constraint("DistanceY", -1, 1, 51, 3, 33.031191),
    Sketcher.Constraint("DistanceY", -1, 1, 55, 3, 38.530921),
    Sketcher.Constraint("DistanceX", -1, 1, 14, 2, 52.11387),
    Sketcher.Constraint("DistanceX", -1, 1, 15, 2, 52.946871),
    Sketcher.Constraint("DistanceY", -1, 1, 16, 2, 32.550589),
    Sketcher.Constraint("DistanceY", -1, 1, 20, 2, 27.050858),
    Sketcher.Constraint("DistanceX", -1, 1, 23, 2, 64.951659),
    Sketcher.Constraint("DistanceY", -1, 1, 24, 2, 38.050319),
    Sketcher.Constraint("DistanceY", -1, 1, 28, 2, 43.550049),
    Sketcher.Constraint("DistanceX", -1, 1, 30, 2, 100.133021),
    Sketcher.Constraint("DistanceX", -1, 1, 45, 2, 54.652171),
    Sketcher.Constraint("DistanceX", -1, 1, 48, 2, 67.48996),
    Sketcher.Constraint("DistanceX", -1, 1, 49, 2, 66.656959),
    Sketcher.Constraint("Distance", 0, 8.547456),
    Sketcher.Constraint("Distance", 2, 8.547456),
    Sketcher.Constraint("Distance", 4, 11.733086),
    Sketcher.Constraint("Distance", 6, 11.733086),
    Sketcher.Constraint("Distance", 8, 21.752075),
    Sketcher.Constraint("Distance", 10, 21.752075),
    Sketcher.Constraint("Distance", 12, 34.956693),
    Sketcher.Constraint("Distance", 20, 48.161312),
    Sketcher.Constraint("Distance", 22, 48.161312),
    Sketcher.Constraint("Distance", 44, 51.346943),
    Sketcher.Constraint("Distance", 46, 51.346943),
    Sketcher.Constraint("Distance", 48, 38.142324),
    Sketcher.Constraint("Distance", 52, 24.937705),
    Sketcher.Constraint("Distance", 54, 24.937705),
    Sketcher.Constraint("DistanceX", -1, 1, 3, 3, 28.520795),
    Sketcher.Constraint("DistanceY", -1, 1, 3, 3, 6.082512),
    Sketcher.Constraint("DistanceX", -1, 1, 5, 3, 91.083035),
    Sketcher.Constraint("DistanceY", -1, 1, 5, 3, 48.917488),
    Sketcher.Constraint("DistanceY", -1, 1, 9, 3, 15.142262),
    Sketcher.Constraint("DistanceX", -1, 1, 11, 3, 40.525583),
    Sketcher.Constraint("DistanceY", -1, 1, 11, 3, 6.082512),
    Sketcher.Constraint("DistanceY", -1, 1, 13, 3, 20.641992),
    Sketcher.Constraint("DistanceX", -1, 1, 19, 3, 76.539946),
    Sketcher.Constraint("DistanceY", -1, 1, 19, 3, 6.082512),
    Sketcher.Constraint("DistanceX", -1, 1, 27, 3, 88.544734),
    Sketcher.Constraint("DistanceY", -1, 1, 27, 3, 6.082512),
    Sketcher.Constraint("DistanceX", -1, 1, 37, 3, 31.059097),
    Sketcher.Constraint("DistanceY", -1, 1, 37, 3, 48.917488),
    Sketcher.Constraint("DistanceX", -1, 1, 41, 3, 43.063884),
    Sketcher.Constraint("DistanceY", -1, 1, 41, 3, 48.917488),
    Sketcher.Constraint("DistanceX", -1, 1, 53, 3, 79.078247),
    Sketcher.Constraint("DistanceY", -1, 1, 53, 3, 48.917488),
])
pocket1 = doc.addObject("PartDesign::Pocket", "Pocket")
body.addObject(pocket1)
pocket1.Profile = sketch3
pocket1.Type = "ThroughAll"

# Sketch on XY plane
sketch4 = doc.addObject("Sketcher::SketchObject", "Sketch003")
body.addObject(sketch4)
sketch4.AttachmentSupport = (doc.XY_Plane, [""])
sketch4.MapMode = "FlatFace"
sketch4.AttachmentOffset = App.Placement(Vector(0, 0, 2), App.Rotation())
add_polygon(sketch4, [(4, 51), (4, 4), (12, 4), (12, 51)])  # lines 0-3
sketch4.addConstraint([
    Sketcher.Constraint("Vertical", 0),
    Sketcher.Constraint("Horizontal", 1),
    Sketcher.Constraint("Vertical", 2),
    Sketcher.Constraint("Horizontal", 3),
    Sketcher.Constraint("DistanceX", 1, 1, 1, 2, 8.0),
    Sketcher.Constraint("DistanceY", 0, 2, 0, 1, 46.5),
    Sketcher.Constraint("DistanceX", -1, 1, 0, 2, 4.25),
    Sketcher.Constraint("DistanceY", -1, 1, 0, 2, 4.25),
])
pocket2 = doc.addObject("PartDesign::Pocket", "Pocket001")
body.addObject(pocket2)
pocket2.Profile = sketch4
pocket2.Type = "ThroughAll"

# Sketch on XY plane
sketch5 = doc.addObject("Sketcher::SketchObject", "Sketch004")
body.addObject(sketch5)
sketch5.AttachmentSupport = (doc.XY_Plane, [""])
sketch5.MapMode = "FlatFace"
sketch5.AttachmentOffset = App.Placement(Vector(0, 0, 10.5), App.Rotation())
add_polygon(sketch5, [(110, 37.5), (110, 17.5), (117, 17.5), (117, 37.5)])  # lines 0-3
sketch5.addGeometry(Part.Circle(Vector(113.5, 22.5, 0), Vector(0, 0, 1), 1.6), False)  # 4
sketch5.addGeometry(Part.Circle(Vector(113.5, 32.5, 0), Vector(0, 0, 1), 1.6), False)  # 5
add_polygon(sketch5, [(-7, 37.5), (-7, 17.5), (0, 17.5), (0, 37.5)])  # lines 6-9
sketch5.addGeometry(Part.Circle(Vector(-3.5, 22.5, 0), Vector(0, 0, 1), 1.6), False)  # 10
sketch5.addGeometry(Part.Circle(Vector(-3.5, 32.5, 0), Vector(0, 0, 1), 1.6), False)  # 11
sketch5.addConstraint([
    Sketcher.Constraint("Vertical", 0),
    Sketcher.Constraint("Horizontal", 1),
    Sketcher.Constraint("Vertical", 2),
    Sketcher.Constraint("Horizontal", 3),
    Sketcher.Constraint("Vertical", 6),
    Sketcher.Constraint("Horizontal", 7),
    Sketcher.Constraint("Vertical", 8),
    Sketcher.Constraint("Horizontal", 9),
    Sketcher.Constraint("Equal", 4, 5),
    Sketcher.Constraint("Equal", 5, 10),
    Sketcher.Constraint("Equal", 10, 11),
    Sketcher.Constraint("PointOnObject", 7, 2, -2),
    Sketcher.Constraint("Horizontal", 4, 3, 10, 3),
    Sketcher.Constraint("Horizontal", 5, 3, 11, 3),
    Sketcher.Constraint("Horizontal", 1, 2, 6, 2),
    Sketcher.Constraint("Horizontal", 3, 2, 8, 2),
    Sketcher.Constraint("Vertical", 4, 3, 5, 3),
    Sketcher.Constraint("Vertical", 10, 3, 11, 3),
    Sketcher.Constraint("Equal", 3, 7),
    Sketcher.Constraint("Diameter", 4, 3.2),
    Sketcher.Constraint("DistanceX", 1, 1, 1, 2, 7.0),
    Sketcher.Constraint("DistanceY", 0, 2, 0, 1, 20.0),
    Sketcher.Constraint("DistanceX", -1, 1, 0, 2, 110.0),
    Sketcher.Constraint("DistanceY", 4, 3, 5, 3, 10.0),
    Sketcher.Constraint("DistanceX", 10, 3, 4, 3, 117.0),
    Sketcher.Constraint("DistanceY", 0, 2, 4, 3, 5.0),
    Sketcher.Constraint("DistanceX", -1, 1, 4, 3, 113.5),
    Sketcher.Constraint("DistanceY", -1, 1, 4, 3, 22.5),
])
pad3 = doc.addObject("PartDesign::Pad", "Pad002")
body.addObject(pad3)
pad3.Profile = sketch5
pad3.Length = 5
pad3.Reversed = True
doc.recompute()

chamfer = doc.addObject("PartDesign::Chamfer", "Chamfer")
body.addObject(chamfer)
chamfer.Base = (pad3, edges_at(pad3, [
    (110, 17.5, 8),
    (110, 37.5, 8),
    (117, 37.5, 8),
    (117, 17.5, 8),
    (0, 37.5, 8),
    (0, 17.5, 8),
    (-7, 17.5, 8),
    (-7, 37.5, 8),
]))
chamfer.Size = 2

doc.recompute()
